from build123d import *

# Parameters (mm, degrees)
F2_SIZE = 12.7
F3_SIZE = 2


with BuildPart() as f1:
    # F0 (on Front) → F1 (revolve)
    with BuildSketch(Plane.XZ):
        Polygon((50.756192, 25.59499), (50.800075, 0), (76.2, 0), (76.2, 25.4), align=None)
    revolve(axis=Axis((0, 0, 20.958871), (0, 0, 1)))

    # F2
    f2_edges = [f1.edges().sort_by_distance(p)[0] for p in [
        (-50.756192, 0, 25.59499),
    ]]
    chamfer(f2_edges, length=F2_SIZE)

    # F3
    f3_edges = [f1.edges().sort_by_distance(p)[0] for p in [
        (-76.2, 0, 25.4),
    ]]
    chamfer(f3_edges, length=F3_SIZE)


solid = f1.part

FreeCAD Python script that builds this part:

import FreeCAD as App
import Part
import Sketcher
from FreeCAD import Vector
Q = App.Units.Quantity


def edges_at(feature, points):
    """Names of the edges that pass closest to the given points."""
    edges = feature.Shape.Edges
    near = lambda p: min(range(len(edges)), key=lambda i: edges[i].distToShape(Part.Vertex(*p))[0])
    return sorted({f"Edge{near(p) + 1}" for p in points})


def add_polygon(sketch, points):
    """Adds a closed chain of lines whose ends are joined by coincident constraints."""
    first, n = sketch.GeometryCount, len(points)
    for a, b in zip(points, points[1:] + points[:1]):
        sketch.addGeometry(Part.LineSegment(App.Vector(*a, 0), App.Vector(*b, 0)), False)
    for i in range(n):
        sketch.addConstraint(Sketcher.Constraint("Coincident", first + i, 2, first + (i + 1) % n, 1))

doc = App.newDocument("Part")
body = doc.addObject("PartDesign::Body", "Body")

sketch1 = doc.addObject("Sketcher::SketchObject", "Sketch")
body.addObject(sketch1)
sketch1.AttachmentSupport = (doc.XZ_Plane, [""])
sketch1.MapMode = "FlatFace"
add_polygon(sketch1, [(51, 26), (51, 0), (76, 0), (76, 25)])
sketch1.addConstraint(Sketcher.Constraint("Horizontal", 1))
sketch1.addConstraint(Sketcher.Constraint("Vertical", 2))
sketch1.addConstraint(Sketcher.Constraint("PointOnObject", 0, 2, -1))
sketch1.addConstraint(Sketcher.Constraint("DistanceY", 2, 1, 2, 2, Q("1 in")))
sketch1.addConstraint(Sketcher.Constraint("DistanceX", -1, 1, 1, 2, Q("3 in")))
sketch1.addConstraint(Sketcher.Constraint("DistanceX", 1, 1, 1, 2, Q("25.399925 mm")))
sketch1.addConstraint(Sketcher.Constraint("DistanceY", -1, 1, 3, 2, Q("25.59499 mm")))
sketch1.addConstraint(Sketcher.Constraint("DistanceX", 3, 2, 2, 2, Q("25.443808 mm")))
revolution = doc.addObject("PartDesign::Revolution", "Revolution")
body.addObject(revolution)
revolution.Profile = sketch1
revolution.ReferenceAxis = (sketch1, ["V_Axis"])
revolution.Angle = 360
doc.recompute()

chamfer = doc.addObject("PartDesign::Chamfer", "Chamfer")
body.addObject(chamfer)
chamfer.Base = (revolution, edges_at(revolution, [(-50.756, 0, 25.595)]))
chamfer.Size = Q("0.5 in")
doc.recompute()

chamfer2 = doc.addObject("PartDesign::Chamfer", "Chamfer001")
body.addObject(chamfer2)
chamfer2.Base = (chamfer, edges_at(chamfer, [(-76.2, 0, 25.4)]))
chamfer2.Size = 2

doc.recompute()
